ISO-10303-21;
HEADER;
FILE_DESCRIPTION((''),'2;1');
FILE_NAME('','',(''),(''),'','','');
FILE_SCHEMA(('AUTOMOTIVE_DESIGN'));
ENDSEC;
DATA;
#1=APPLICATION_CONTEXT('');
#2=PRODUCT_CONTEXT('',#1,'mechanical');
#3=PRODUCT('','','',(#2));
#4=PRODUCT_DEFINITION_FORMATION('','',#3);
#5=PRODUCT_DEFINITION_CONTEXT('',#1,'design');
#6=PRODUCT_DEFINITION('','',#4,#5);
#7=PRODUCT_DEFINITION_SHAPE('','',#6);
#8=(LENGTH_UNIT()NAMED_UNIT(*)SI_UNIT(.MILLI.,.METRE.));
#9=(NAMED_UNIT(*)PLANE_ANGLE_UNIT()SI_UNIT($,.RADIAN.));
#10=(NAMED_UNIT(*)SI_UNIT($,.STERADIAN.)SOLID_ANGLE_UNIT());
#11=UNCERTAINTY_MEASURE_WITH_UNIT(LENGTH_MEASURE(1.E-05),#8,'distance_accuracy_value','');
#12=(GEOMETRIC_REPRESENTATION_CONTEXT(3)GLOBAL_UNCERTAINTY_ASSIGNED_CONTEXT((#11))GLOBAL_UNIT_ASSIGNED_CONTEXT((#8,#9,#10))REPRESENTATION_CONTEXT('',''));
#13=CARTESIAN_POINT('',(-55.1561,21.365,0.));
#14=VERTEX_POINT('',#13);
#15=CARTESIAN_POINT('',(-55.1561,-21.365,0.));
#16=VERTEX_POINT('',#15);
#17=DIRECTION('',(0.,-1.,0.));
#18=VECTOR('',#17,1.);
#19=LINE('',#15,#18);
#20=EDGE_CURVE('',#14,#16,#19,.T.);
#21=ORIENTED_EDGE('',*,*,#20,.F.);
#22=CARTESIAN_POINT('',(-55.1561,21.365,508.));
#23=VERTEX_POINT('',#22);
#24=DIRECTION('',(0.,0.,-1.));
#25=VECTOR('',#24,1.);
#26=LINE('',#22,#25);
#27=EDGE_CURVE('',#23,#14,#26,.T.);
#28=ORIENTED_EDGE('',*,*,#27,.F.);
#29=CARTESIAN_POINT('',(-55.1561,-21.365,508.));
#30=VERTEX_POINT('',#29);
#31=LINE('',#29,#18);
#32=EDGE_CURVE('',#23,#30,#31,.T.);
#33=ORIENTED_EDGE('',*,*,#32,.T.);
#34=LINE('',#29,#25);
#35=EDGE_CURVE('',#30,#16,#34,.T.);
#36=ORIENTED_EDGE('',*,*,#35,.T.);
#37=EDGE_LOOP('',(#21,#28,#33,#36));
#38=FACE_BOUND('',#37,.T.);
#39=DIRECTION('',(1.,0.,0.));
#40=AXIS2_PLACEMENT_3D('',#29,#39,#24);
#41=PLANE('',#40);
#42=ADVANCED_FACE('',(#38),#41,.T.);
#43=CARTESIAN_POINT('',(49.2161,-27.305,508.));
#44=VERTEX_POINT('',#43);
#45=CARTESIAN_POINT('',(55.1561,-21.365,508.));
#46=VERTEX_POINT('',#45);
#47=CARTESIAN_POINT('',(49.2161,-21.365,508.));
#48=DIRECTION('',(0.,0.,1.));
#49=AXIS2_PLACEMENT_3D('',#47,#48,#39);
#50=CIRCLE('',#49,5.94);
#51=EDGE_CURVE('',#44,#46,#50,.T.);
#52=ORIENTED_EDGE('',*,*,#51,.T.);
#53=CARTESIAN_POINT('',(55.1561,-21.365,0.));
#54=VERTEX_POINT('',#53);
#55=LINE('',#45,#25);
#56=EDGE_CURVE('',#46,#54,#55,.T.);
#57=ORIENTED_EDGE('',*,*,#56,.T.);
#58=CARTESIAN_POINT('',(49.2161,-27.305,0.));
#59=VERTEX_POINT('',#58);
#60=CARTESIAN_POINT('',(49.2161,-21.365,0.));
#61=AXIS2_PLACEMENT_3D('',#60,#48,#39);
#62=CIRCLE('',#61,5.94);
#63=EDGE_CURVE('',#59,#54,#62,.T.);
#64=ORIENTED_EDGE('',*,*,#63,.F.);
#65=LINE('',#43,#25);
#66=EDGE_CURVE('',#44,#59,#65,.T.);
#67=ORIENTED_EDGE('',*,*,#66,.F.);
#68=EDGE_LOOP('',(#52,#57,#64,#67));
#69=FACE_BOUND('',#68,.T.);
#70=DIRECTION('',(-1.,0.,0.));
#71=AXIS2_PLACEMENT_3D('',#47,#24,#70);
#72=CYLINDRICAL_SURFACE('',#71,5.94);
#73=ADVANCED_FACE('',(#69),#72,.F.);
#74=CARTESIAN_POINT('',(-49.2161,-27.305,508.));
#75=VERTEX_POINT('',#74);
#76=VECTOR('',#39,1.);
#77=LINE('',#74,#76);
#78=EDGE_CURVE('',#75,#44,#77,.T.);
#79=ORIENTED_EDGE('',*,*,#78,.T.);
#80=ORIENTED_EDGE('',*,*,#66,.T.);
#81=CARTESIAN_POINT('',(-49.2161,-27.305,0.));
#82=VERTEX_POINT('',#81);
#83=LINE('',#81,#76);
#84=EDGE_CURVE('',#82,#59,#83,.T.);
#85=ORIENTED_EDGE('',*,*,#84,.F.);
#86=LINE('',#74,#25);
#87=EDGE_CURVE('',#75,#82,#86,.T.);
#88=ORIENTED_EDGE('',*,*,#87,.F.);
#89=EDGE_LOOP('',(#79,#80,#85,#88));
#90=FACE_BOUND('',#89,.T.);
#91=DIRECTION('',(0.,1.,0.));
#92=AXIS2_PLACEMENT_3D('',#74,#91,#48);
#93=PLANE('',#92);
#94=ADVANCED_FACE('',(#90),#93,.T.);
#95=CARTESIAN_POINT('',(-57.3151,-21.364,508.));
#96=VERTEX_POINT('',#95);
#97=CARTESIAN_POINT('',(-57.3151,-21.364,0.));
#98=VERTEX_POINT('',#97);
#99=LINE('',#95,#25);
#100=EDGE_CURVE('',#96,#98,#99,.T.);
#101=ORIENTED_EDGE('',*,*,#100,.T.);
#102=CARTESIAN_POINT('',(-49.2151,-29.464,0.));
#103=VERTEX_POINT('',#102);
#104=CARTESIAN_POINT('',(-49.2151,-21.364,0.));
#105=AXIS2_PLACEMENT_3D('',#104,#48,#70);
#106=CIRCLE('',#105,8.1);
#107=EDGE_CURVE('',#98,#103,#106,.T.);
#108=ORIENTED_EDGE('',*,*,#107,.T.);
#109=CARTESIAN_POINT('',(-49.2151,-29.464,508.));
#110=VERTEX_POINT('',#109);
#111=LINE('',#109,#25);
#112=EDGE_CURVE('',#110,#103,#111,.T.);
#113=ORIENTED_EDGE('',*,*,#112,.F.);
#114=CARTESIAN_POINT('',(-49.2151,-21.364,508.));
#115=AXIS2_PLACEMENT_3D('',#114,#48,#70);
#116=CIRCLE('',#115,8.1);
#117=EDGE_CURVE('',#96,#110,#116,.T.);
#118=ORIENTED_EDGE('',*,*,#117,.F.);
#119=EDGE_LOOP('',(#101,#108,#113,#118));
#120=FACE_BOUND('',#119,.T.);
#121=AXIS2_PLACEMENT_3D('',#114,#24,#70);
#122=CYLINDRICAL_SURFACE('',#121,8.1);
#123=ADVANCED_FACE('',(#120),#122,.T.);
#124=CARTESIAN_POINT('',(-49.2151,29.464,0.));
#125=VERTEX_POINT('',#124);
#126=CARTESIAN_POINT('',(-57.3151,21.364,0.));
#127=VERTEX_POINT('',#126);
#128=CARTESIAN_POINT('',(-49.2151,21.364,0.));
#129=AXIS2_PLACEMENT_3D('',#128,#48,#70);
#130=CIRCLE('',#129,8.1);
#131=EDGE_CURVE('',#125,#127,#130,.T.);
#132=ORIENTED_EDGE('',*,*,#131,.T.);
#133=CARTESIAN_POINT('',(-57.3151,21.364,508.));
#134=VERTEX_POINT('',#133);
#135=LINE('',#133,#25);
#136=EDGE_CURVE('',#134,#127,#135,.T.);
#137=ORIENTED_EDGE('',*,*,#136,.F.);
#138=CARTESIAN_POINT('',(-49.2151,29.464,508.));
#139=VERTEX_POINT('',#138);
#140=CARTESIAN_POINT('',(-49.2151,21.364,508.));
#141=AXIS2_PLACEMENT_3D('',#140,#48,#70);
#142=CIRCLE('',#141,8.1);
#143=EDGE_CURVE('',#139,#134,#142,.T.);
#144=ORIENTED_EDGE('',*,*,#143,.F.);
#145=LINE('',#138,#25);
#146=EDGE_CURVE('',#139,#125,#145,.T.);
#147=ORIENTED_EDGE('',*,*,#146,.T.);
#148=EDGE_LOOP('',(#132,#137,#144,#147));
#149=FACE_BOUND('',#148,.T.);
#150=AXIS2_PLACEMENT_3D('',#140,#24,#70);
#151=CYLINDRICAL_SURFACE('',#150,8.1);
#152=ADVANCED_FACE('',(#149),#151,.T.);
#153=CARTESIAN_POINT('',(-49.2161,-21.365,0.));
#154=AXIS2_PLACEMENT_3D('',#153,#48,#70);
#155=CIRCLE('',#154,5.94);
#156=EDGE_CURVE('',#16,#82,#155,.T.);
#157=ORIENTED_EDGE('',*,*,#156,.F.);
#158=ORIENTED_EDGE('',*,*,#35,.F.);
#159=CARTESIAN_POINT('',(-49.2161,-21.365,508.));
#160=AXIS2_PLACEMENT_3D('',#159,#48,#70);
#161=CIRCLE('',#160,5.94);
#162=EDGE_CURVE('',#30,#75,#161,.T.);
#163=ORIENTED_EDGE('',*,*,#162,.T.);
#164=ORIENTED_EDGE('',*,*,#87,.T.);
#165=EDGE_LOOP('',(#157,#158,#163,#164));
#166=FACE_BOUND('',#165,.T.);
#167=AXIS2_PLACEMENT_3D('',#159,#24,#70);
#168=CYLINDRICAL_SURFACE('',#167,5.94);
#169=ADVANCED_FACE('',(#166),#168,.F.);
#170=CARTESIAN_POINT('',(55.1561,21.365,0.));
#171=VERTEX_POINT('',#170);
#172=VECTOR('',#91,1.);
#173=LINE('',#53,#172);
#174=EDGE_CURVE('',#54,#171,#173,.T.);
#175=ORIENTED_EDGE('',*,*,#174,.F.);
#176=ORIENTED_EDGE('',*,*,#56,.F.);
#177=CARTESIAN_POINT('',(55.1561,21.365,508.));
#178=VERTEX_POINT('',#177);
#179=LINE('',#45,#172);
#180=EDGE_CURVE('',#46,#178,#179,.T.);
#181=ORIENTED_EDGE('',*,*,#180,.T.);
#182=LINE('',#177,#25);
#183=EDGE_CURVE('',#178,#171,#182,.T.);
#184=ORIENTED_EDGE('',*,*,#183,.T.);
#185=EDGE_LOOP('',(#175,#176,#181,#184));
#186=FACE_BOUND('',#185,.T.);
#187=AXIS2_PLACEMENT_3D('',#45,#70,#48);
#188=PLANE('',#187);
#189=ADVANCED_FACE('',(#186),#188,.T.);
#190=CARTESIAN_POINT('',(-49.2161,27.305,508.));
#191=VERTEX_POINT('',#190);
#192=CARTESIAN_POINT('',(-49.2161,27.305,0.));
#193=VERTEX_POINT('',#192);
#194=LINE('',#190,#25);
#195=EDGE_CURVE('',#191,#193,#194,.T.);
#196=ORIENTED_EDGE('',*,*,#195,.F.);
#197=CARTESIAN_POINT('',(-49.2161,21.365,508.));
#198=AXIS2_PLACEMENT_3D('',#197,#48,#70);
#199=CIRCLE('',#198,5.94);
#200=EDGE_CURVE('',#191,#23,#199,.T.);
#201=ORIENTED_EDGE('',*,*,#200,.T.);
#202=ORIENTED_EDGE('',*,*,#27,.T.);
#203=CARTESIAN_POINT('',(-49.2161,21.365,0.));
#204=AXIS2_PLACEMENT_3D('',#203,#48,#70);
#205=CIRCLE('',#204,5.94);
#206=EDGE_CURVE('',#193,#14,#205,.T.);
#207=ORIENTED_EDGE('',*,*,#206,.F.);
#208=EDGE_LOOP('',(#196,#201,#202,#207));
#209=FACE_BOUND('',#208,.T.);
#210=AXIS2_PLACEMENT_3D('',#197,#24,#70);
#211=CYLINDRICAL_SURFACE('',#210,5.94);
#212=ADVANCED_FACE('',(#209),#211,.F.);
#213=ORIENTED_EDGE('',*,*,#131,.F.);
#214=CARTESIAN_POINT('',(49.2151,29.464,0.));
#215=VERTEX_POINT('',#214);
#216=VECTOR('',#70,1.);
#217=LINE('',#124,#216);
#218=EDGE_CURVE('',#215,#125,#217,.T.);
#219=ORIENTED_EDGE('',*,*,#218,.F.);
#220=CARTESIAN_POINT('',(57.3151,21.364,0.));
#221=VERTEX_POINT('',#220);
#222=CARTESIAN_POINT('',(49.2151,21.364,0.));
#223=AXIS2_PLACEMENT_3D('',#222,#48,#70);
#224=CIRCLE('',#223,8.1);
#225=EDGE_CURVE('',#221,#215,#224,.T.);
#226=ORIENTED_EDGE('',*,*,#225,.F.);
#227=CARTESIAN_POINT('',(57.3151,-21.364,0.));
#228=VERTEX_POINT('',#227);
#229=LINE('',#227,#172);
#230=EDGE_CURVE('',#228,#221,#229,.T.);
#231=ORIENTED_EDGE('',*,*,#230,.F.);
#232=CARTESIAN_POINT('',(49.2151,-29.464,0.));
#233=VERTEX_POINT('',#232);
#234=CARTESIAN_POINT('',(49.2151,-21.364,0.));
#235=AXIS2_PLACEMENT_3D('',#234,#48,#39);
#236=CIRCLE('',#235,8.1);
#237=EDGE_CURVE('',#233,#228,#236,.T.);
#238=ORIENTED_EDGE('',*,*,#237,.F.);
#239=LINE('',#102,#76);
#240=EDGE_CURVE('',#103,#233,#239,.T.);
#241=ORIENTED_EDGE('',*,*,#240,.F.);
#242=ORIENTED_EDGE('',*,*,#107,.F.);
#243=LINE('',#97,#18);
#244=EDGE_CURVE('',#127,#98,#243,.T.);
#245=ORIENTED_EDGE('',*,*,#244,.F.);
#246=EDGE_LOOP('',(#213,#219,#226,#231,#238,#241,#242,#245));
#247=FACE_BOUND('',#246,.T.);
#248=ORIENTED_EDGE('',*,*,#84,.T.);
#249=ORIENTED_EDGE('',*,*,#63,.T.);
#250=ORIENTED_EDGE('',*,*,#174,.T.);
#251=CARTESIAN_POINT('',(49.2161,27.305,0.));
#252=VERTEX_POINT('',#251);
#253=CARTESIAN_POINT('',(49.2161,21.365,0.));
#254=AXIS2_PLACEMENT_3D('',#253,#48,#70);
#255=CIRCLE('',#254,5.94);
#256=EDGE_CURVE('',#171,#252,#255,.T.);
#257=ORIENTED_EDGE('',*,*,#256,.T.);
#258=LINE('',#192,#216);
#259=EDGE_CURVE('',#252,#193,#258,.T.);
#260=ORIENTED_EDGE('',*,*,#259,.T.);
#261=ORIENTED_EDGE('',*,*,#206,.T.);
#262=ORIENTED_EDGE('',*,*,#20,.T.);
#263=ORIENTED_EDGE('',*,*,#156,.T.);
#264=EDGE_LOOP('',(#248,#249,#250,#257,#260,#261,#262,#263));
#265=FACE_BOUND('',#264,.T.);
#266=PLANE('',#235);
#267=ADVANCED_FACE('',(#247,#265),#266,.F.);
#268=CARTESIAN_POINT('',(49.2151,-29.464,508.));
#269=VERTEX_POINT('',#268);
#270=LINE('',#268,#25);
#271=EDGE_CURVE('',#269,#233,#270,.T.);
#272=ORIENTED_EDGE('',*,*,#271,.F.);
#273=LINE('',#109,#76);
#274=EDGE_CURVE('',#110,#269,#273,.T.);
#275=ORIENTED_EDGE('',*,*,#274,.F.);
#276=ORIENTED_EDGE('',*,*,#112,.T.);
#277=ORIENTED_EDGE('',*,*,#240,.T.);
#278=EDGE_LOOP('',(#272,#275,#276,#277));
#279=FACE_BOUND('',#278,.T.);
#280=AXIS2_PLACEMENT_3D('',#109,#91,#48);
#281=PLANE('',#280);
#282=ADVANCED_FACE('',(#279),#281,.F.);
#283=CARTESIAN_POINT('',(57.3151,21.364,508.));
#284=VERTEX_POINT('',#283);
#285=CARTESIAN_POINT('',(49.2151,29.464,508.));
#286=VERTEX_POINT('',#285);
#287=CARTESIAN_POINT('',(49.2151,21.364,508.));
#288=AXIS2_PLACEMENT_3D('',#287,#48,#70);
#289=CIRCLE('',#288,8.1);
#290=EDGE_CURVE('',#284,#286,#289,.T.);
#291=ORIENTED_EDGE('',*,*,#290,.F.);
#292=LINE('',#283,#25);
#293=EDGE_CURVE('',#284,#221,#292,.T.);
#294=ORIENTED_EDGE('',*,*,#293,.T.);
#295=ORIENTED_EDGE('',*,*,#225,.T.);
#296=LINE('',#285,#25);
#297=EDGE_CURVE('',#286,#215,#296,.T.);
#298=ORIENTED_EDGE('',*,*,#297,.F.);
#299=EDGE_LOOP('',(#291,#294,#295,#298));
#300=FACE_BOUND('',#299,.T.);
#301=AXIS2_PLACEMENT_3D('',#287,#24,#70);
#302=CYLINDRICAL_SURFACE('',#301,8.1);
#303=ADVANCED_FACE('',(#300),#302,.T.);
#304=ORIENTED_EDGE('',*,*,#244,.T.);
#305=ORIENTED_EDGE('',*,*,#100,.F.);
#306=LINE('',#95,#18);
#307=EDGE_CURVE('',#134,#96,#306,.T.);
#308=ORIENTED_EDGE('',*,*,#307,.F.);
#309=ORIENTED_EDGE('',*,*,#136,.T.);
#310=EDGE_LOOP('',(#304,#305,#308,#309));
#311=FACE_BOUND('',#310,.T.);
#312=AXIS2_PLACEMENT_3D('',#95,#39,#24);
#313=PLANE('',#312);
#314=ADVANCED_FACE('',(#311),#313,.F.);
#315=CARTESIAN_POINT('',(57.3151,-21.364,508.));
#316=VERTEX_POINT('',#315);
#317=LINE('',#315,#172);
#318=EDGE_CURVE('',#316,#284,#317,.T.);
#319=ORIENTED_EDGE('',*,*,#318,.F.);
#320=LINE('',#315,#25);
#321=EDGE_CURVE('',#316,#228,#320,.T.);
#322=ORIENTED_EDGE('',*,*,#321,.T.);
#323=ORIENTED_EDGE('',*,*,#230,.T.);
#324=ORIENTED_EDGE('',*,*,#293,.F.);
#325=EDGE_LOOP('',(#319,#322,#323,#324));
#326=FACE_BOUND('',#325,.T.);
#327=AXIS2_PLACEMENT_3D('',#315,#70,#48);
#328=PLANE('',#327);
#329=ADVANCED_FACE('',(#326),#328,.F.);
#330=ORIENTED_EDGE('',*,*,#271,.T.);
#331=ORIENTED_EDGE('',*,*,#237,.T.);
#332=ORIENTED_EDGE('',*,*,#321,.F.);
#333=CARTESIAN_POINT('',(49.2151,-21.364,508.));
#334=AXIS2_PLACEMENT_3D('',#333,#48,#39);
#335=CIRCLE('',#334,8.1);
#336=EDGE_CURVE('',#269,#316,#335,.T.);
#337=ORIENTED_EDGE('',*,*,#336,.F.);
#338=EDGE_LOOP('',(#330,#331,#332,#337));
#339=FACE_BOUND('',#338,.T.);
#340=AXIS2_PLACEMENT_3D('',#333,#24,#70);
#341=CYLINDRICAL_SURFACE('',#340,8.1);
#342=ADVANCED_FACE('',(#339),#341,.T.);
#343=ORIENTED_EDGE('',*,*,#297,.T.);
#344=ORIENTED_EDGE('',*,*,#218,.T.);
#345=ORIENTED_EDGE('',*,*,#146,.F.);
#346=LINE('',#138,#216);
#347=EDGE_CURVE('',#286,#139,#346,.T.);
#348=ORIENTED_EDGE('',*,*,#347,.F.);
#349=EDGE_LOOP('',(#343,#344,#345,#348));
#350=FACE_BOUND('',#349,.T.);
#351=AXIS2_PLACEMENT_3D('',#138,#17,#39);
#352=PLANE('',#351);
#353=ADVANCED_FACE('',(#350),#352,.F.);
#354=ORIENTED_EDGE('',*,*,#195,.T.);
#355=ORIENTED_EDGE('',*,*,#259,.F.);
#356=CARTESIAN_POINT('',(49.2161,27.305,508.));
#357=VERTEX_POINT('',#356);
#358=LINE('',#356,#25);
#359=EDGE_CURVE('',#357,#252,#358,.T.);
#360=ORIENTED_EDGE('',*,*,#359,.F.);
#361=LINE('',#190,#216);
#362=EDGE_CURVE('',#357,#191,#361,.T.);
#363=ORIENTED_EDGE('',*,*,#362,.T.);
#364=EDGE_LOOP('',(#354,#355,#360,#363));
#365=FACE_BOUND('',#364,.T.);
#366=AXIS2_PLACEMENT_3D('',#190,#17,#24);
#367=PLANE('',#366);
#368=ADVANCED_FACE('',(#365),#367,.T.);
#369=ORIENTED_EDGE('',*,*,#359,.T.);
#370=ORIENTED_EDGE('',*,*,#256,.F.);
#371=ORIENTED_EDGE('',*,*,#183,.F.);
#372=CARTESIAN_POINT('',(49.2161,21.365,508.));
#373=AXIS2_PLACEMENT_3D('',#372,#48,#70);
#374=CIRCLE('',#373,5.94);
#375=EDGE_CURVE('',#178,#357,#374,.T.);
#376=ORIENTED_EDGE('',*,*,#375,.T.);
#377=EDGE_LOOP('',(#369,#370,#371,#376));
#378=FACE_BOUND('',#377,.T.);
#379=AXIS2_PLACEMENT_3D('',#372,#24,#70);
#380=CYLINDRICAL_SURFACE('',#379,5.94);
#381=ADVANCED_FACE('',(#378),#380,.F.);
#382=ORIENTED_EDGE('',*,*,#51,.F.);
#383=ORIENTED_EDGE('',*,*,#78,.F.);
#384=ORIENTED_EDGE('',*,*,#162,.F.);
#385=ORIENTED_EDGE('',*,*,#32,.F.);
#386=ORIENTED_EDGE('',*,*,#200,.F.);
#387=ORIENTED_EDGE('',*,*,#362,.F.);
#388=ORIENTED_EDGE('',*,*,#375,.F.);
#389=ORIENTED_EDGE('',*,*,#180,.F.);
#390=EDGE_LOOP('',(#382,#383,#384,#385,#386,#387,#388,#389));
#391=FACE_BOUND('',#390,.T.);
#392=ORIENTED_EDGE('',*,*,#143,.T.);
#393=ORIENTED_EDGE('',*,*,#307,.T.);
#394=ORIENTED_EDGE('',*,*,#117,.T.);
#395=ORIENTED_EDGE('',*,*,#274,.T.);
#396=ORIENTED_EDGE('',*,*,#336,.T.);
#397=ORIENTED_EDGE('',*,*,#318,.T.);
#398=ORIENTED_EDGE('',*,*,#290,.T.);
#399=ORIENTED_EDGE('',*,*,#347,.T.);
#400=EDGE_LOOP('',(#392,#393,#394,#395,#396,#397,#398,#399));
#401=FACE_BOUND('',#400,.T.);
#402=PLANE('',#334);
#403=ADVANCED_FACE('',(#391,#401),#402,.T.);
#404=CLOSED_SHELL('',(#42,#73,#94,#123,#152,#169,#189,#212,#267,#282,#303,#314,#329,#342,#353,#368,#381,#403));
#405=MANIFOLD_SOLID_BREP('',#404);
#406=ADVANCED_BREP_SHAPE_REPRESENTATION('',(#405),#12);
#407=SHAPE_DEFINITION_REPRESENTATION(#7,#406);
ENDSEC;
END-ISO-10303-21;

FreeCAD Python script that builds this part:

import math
import FreeCAD as App
import Part
import Sketcher
Q = App.Units.Quantity

doc = App.newDocument("Part")
body = doc.addObject("PartDesign::Body", "Body")

# Sketch on XY plane
sketch1 = doc.addObject("Sketcher::SketchObject", "Sketch")
body.addObject(sketch1)
sketch1.AttachmentSupport = (doc.XY_Plane, [""])
sketch1.MapMode = "FlatFace"
sketch1.addGeometry([
    Part.LineSegment(App.Vector(-49, -29, 0), App.Vector(49, -29, 0)),  # 0
    Part.ArcOfCircle(Part.Circle(App.Vector(49, -21, 0), App.Vector(0, 0, 1), 8), math.radians(-90), math.radians(0)),  # 1
    Part.LineSegment(App.Vector(57, -21, 0), App.Vector(57, 21, 0)),  # 2
    Part.ArcOfCircle(Part.Circle(App.Vector(49, 21, 0), App.Vector(0, 0, 1), 8), math.radians(0), math.radians(90)),  # 3
    Part.LineSegment(App.Vector(49, 29, 0), App.Vector(-49, 29, 0)),  # 4
    Part.ArcOfCircle(Part.Circle(App.Vector(-49, 21, 0), App.Vector(0, 0, 1), 8), math.radians(90), math.radians(180)),  # 5
    Part.LineSegment(App.Vector(-57, 21, 0), App.Vector(-57, -21, 0)),  # 6
    Part.ArcOfCircle(Part.Circle(App.Vector(-49, -21, 0), App.Vector(0, 0, 1), 8), math.radians(180), math.radians(270)),  # 7
    Part.LineSegment(App.Vector(49, -27, 0), App.Vector(-49, -27, 0)),  # 8
    Part.ArcOfCircle(Part.Circle(App.Vector(-49, -21, 0), App.Vector(0, 0, 1), 6), math.radians(-180), math.radians(-90)),  # 9
    Part.LineSegment(App.Vector(-55, -21, 0), App.Vector(-55, 21, 0)),  # 10
    Part.ArcOfCircle(Part.Circle(App.Vector(-49, 21, 0), App.Vector(0, 0, 1), 6), math.radians(90), math.radians(180)),  # 11
    Part.LineSegment(App.Vector(-49, 27, 0), App.Vector(49, 27, 0)),  # 12
    Part.ArcOfCircle(Part.Circle(App.Vector(49, 21, 0), App.Vector(0, 0, 1), 6), math.radians(0), math.radians(90)),  # 13
    Part.LineSegment(App.Vector(55, 21, 0), App.Vector(55, -21, 0)),  # 14
    Part.ArcOfCircle(Part.Circle(App.Vector(49, -21, 0), App.Vector(0, 0, 1), 6), math.radians(-90), math.radians(0)),  # 15
], False)
sketch1.addConstraint([
    Sketcher.Constraint("Tangent", 0, 2, 1, 1),
    Sketcher.Constraint("Tangent", 1, 2, 2, 1),
    Sketcher.Constraint("Tangent", 2, 2, 3, 1),
    Sketcher.Constraint("Tangent", 3, 2, 4, 1),
    Sketcher.Constraint("Tangent", 4, 2, 5, 1),
    Sketcher.Constraint("Tangent", 5, 2, 6, 1),
    Sketcher.Constraint("Tangent", 6, 2, 7, 1),
    Sketcher.Constraint("Tangent", 7, 2, 0, 1),
    Sketcher.Constraint("Tangent", 8, 2, 9, 2),
    Sketcher.Constraint("Tangent", 9, 1, 10, 1),
    Sketcher.Constraint("Tangent", 10, 2, 11, 2),
    Sketcher.Constraint("Tangent", 11, 1, 12, 1),
    Sketcher.Constraint("Tangent", 12, 2, 13, 2),
    Sketcher.Constraint("Tangent", 13, 1, 14, 1),
    Sketcher.Constraint("Tangent", 14, 2, 15, 2),
    Sketcher.Constraint("Tangent", 15, 1, 8, 1),
    Sketcher.Constraint("Horizontal", 0),
    Sketcher.Constraint("Vertical", 2),
    Sketcher.Constraint("Horizontal", 4),
    Sketcher.Constraint("Vertical", 6),
    Sketcher.Constraint("Horizontal", 8),
    Sketcher.Constraint("Vertical", 10),
    Sketcher.Constraint("Horizontal", 12),
    Sketcher.Constraint("Vertical", 14),
    Sketcher.Constraint("Equal", 1, 3),
    Sketcher.Constraint("Equal", 3, 5),
    Sketcher.Constraint("Equal", 5, 7),
    Sketcher.Constraint("Equal", 9, 11),
    Sketcher.Constraint("Equal", 11, 13),
    Sketcher.Constraint("Equal", 13, 15),
    Sketcher.Constraint("Symmetric", 1, 3, 5, 3, -1, 1),
    Sketcher.Constraint("Symmetric", 9, 3, 13, 3, -1, 1),
    Sketcher.Constraint("Radius", 1, Q("8.1 mm")),
    Sketcher.Constraint("Radius", 9, Q("5.94 mm")),
    Sketcher.Constraint("DistanceY", 10, 1, 10, 2, Q("42.73 mm")),
    Sketcher.Constraint("DistanceY", 2, 1, 2, 2, Q("42.728 mm")),
    Sketcher.Constraint("DistanceX", 0, 1, 0, 2, Q("98.4302 mm")),
    Sketcher.Constraint("DistanceX", 8, 2, 8, 1, Q("98.4322 mm")),
])
pad1 = doc.addObject("PartDesign::Pad", "Pad")
body.addObject(pad1)
pad1.Profile = sketch1
pad1.Length = 508

doc.recompute()
